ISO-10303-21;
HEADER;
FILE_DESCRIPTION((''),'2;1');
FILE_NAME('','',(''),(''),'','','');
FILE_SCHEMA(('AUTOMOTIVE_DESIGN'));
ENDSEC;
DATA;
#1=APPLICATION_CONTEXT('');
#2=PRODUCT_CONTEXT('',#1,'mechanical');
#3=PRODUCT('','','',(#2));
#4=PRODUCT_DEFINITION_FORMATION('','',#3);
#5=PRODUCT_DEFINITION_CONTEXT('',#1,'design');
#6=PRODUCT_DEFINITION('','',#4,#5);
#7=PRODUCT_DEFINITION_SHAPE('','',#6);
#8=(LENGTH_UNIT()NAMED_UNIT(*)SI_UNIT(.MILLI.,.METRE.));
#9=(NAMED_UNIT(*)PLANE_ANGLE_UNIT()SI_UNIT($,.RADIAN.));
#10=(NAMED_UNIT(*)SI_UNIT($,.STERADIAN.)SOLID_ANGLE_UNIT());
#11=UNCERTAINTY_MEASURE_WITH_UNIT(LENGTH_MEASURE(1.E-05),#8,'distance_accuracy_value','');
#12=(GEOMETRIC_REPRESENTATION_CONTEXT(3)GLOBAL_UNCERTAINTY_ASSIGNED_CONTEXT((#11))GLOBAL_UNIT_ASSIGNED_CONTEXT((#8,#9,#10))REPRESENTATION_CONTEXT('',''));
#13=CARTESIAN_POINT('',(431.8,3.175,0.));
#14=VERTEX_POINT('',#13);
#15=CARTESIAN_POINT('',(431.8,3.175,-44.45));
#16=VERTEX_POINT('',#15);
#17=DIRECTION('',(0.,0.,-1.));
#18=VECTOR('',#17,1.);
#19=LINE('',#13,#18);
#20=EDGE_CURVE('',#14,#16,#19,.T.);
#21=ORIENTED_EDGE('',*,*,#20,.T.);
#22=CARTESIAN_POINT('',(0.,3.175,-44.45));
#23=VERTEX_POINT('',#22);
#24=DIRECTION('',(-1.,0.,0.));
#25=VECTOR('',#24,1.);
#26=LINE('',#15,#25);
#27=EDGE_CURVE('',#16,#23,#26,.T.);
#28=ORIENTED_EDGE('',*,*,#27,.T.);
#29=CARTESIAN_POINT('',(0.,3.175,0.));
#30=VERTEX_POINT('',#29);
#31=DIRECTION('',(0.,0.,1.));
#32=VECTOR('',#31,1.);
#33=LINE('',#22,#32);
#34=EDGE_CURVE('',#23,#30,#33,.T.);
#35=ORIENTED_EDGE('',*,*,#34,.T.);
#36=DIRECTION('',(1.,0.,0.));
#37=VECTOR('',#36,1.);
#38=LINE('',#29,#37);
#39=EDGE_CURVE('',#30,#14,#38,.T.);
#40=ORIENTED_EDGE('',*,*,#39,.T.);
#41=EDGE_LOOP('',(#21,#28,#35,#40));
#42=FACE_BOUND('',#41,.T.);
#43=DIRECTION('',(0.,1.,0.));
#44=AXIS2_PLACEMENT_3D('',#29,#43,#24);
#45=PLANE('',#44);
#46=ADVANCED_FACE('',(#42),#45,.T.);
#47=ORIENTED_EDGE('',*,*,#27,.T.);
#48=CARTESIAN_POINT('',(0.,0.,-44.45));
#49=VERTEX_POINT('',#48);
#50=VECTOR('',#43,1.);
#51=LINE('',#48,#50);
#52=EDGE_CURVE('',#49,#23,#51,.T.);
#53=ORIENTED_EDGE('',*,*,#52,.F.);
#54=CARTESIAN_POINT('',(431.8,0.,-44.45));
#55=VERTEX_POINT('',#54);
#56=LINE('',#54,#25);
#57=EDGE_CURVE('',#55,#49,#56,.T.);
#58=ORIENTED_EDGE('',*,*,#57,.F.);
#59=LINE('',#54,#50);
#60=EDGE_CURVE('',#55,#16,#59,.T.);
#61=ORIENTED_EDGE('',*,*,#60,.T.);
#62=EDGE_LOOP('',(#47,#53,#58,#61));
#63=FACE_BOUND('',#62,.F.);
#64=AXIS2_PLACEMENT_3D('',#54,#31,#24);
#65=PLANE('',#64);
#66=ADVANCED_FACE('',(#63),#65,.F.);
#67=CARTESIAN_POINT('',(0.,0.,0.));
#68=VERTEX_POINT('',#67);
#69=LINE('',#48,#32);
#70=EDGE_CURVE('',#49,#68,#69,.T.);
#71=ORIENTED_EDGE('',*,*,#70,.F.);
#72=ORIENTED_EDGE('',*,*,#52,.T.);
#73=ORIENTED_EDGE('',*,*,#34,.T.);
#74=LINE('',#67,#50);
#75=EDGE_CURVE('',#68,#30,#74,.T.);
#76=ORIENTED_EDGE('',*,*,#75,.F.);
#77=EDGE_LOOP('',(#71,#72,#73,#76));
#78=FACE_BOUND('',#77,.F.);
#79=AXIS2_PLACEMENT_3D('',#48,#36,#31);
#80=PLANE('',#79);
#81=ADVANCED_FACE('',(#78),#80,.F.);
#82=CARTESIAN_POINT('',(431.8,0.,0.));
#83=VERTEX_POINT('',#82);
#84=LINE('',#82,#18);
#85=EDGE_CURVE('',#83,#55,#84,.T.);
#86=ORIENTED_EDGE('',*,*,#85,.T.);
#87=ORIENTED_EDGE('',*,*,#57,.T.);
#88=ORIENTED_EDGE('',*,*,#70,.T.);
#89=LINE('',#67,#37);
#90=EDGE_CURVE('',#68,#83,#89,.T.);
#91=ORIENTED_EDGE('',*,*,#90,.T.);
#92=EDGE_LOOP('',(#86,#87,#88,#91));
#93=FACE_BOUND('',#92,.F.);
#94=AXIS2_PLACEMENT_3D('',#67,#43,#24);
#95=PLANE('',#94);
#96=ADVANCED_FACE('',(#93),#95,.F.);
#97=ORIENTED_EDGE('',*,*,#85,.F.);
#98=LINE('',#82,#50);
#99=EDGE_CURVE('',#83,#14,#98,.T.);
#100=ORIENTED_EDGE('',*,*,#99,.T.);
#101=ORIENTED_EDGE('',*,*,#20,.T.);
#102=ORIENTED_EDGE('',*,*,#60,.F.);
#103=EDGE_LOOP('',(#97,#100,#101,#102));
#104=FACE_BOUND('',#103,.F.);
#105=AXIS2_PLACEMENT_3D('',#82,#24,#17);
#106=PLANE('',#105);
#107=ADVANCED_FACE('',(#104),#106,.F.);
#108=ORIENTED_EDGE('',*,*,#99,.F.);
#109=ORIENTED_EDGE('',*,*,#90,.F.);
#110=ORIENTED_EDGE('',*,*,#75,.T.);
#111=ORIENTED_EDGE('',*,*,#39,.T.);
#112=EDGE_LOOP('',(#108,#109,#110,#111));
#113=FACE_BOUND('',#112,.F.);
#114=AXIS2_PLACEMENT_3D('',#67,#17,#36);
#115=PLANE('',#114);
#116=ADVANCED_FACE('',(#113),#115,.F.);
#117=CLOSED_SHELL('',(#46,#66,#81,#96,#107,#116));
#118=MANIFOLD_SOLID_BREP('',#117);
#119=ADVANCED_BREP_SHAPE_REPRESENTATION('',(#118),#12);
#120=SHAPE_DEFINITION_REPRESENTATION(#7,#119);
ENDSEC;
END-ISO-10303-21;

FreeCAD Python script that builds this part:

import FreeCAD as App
import Part
import Sketcher

V = App.Vector
Q = App.Units.Quantity

doc = App.newDocument("Part")
body = doc.addObject("PartDesign::Body", "Body")

# Sketch on XZ plane
sketch1 = body.newObject("Sketcher::SketchObject", "Sketch")
sketch1.AttachmentSupport = (doc.getObject("XZ_Plane"), [""])
sketch1.MapMode = "FlatFace"
sketch1.addGeometry([
    Part.LineSegment(V(0, -44.45, 0), V(0, 0, 0)),
    Part.LineSegment(V(0, 0, 0), V(431.8, 0, 0)),
    Part.LineSegment(V(431.8, 0, 0), V(431.8, -44.45, 0)),
    Part.LineSegment(V(431.8, -44.45, 0), V(0, -44.45, 0)),
], False)
sketch1.addConstraint([
    Sketcher.Constraint("Coincident", 0, 2, 1, 1),
    Sketcher.Constraint("Coincident", 1, 2, 2, 1),
    Sketcher.Constraint("Coincident", 2, 2, 3, 1),
    Sketcher.Constraint("Coincident", 3, 2, 0, 1),
    Sketcher.Constraint("Vertical", 0),
    Sketcher.Constraint("Horizontal", 1),
    Sketcher.Constraint("Vertical", 2),
    Sketcher.Constraint("Horizontal", 3),
    Sketcher.Constraint("Coincident", 0, 2, -1, 1),
    Sketcher.Constraint("DistanceX", 1, 1, 1, 2, Q("17 in")),
    Sketcher.Constraint("DistanceY", 0, 1, 0, 2, Q("1.75 in")),
])
pad1 = body.newObject("PartDesign::Pad", "Pad")
pad1.Profile = sketch1
pad1.Length = Q("0.125 in")
pad1.Reversed = True

doc.recompute()
